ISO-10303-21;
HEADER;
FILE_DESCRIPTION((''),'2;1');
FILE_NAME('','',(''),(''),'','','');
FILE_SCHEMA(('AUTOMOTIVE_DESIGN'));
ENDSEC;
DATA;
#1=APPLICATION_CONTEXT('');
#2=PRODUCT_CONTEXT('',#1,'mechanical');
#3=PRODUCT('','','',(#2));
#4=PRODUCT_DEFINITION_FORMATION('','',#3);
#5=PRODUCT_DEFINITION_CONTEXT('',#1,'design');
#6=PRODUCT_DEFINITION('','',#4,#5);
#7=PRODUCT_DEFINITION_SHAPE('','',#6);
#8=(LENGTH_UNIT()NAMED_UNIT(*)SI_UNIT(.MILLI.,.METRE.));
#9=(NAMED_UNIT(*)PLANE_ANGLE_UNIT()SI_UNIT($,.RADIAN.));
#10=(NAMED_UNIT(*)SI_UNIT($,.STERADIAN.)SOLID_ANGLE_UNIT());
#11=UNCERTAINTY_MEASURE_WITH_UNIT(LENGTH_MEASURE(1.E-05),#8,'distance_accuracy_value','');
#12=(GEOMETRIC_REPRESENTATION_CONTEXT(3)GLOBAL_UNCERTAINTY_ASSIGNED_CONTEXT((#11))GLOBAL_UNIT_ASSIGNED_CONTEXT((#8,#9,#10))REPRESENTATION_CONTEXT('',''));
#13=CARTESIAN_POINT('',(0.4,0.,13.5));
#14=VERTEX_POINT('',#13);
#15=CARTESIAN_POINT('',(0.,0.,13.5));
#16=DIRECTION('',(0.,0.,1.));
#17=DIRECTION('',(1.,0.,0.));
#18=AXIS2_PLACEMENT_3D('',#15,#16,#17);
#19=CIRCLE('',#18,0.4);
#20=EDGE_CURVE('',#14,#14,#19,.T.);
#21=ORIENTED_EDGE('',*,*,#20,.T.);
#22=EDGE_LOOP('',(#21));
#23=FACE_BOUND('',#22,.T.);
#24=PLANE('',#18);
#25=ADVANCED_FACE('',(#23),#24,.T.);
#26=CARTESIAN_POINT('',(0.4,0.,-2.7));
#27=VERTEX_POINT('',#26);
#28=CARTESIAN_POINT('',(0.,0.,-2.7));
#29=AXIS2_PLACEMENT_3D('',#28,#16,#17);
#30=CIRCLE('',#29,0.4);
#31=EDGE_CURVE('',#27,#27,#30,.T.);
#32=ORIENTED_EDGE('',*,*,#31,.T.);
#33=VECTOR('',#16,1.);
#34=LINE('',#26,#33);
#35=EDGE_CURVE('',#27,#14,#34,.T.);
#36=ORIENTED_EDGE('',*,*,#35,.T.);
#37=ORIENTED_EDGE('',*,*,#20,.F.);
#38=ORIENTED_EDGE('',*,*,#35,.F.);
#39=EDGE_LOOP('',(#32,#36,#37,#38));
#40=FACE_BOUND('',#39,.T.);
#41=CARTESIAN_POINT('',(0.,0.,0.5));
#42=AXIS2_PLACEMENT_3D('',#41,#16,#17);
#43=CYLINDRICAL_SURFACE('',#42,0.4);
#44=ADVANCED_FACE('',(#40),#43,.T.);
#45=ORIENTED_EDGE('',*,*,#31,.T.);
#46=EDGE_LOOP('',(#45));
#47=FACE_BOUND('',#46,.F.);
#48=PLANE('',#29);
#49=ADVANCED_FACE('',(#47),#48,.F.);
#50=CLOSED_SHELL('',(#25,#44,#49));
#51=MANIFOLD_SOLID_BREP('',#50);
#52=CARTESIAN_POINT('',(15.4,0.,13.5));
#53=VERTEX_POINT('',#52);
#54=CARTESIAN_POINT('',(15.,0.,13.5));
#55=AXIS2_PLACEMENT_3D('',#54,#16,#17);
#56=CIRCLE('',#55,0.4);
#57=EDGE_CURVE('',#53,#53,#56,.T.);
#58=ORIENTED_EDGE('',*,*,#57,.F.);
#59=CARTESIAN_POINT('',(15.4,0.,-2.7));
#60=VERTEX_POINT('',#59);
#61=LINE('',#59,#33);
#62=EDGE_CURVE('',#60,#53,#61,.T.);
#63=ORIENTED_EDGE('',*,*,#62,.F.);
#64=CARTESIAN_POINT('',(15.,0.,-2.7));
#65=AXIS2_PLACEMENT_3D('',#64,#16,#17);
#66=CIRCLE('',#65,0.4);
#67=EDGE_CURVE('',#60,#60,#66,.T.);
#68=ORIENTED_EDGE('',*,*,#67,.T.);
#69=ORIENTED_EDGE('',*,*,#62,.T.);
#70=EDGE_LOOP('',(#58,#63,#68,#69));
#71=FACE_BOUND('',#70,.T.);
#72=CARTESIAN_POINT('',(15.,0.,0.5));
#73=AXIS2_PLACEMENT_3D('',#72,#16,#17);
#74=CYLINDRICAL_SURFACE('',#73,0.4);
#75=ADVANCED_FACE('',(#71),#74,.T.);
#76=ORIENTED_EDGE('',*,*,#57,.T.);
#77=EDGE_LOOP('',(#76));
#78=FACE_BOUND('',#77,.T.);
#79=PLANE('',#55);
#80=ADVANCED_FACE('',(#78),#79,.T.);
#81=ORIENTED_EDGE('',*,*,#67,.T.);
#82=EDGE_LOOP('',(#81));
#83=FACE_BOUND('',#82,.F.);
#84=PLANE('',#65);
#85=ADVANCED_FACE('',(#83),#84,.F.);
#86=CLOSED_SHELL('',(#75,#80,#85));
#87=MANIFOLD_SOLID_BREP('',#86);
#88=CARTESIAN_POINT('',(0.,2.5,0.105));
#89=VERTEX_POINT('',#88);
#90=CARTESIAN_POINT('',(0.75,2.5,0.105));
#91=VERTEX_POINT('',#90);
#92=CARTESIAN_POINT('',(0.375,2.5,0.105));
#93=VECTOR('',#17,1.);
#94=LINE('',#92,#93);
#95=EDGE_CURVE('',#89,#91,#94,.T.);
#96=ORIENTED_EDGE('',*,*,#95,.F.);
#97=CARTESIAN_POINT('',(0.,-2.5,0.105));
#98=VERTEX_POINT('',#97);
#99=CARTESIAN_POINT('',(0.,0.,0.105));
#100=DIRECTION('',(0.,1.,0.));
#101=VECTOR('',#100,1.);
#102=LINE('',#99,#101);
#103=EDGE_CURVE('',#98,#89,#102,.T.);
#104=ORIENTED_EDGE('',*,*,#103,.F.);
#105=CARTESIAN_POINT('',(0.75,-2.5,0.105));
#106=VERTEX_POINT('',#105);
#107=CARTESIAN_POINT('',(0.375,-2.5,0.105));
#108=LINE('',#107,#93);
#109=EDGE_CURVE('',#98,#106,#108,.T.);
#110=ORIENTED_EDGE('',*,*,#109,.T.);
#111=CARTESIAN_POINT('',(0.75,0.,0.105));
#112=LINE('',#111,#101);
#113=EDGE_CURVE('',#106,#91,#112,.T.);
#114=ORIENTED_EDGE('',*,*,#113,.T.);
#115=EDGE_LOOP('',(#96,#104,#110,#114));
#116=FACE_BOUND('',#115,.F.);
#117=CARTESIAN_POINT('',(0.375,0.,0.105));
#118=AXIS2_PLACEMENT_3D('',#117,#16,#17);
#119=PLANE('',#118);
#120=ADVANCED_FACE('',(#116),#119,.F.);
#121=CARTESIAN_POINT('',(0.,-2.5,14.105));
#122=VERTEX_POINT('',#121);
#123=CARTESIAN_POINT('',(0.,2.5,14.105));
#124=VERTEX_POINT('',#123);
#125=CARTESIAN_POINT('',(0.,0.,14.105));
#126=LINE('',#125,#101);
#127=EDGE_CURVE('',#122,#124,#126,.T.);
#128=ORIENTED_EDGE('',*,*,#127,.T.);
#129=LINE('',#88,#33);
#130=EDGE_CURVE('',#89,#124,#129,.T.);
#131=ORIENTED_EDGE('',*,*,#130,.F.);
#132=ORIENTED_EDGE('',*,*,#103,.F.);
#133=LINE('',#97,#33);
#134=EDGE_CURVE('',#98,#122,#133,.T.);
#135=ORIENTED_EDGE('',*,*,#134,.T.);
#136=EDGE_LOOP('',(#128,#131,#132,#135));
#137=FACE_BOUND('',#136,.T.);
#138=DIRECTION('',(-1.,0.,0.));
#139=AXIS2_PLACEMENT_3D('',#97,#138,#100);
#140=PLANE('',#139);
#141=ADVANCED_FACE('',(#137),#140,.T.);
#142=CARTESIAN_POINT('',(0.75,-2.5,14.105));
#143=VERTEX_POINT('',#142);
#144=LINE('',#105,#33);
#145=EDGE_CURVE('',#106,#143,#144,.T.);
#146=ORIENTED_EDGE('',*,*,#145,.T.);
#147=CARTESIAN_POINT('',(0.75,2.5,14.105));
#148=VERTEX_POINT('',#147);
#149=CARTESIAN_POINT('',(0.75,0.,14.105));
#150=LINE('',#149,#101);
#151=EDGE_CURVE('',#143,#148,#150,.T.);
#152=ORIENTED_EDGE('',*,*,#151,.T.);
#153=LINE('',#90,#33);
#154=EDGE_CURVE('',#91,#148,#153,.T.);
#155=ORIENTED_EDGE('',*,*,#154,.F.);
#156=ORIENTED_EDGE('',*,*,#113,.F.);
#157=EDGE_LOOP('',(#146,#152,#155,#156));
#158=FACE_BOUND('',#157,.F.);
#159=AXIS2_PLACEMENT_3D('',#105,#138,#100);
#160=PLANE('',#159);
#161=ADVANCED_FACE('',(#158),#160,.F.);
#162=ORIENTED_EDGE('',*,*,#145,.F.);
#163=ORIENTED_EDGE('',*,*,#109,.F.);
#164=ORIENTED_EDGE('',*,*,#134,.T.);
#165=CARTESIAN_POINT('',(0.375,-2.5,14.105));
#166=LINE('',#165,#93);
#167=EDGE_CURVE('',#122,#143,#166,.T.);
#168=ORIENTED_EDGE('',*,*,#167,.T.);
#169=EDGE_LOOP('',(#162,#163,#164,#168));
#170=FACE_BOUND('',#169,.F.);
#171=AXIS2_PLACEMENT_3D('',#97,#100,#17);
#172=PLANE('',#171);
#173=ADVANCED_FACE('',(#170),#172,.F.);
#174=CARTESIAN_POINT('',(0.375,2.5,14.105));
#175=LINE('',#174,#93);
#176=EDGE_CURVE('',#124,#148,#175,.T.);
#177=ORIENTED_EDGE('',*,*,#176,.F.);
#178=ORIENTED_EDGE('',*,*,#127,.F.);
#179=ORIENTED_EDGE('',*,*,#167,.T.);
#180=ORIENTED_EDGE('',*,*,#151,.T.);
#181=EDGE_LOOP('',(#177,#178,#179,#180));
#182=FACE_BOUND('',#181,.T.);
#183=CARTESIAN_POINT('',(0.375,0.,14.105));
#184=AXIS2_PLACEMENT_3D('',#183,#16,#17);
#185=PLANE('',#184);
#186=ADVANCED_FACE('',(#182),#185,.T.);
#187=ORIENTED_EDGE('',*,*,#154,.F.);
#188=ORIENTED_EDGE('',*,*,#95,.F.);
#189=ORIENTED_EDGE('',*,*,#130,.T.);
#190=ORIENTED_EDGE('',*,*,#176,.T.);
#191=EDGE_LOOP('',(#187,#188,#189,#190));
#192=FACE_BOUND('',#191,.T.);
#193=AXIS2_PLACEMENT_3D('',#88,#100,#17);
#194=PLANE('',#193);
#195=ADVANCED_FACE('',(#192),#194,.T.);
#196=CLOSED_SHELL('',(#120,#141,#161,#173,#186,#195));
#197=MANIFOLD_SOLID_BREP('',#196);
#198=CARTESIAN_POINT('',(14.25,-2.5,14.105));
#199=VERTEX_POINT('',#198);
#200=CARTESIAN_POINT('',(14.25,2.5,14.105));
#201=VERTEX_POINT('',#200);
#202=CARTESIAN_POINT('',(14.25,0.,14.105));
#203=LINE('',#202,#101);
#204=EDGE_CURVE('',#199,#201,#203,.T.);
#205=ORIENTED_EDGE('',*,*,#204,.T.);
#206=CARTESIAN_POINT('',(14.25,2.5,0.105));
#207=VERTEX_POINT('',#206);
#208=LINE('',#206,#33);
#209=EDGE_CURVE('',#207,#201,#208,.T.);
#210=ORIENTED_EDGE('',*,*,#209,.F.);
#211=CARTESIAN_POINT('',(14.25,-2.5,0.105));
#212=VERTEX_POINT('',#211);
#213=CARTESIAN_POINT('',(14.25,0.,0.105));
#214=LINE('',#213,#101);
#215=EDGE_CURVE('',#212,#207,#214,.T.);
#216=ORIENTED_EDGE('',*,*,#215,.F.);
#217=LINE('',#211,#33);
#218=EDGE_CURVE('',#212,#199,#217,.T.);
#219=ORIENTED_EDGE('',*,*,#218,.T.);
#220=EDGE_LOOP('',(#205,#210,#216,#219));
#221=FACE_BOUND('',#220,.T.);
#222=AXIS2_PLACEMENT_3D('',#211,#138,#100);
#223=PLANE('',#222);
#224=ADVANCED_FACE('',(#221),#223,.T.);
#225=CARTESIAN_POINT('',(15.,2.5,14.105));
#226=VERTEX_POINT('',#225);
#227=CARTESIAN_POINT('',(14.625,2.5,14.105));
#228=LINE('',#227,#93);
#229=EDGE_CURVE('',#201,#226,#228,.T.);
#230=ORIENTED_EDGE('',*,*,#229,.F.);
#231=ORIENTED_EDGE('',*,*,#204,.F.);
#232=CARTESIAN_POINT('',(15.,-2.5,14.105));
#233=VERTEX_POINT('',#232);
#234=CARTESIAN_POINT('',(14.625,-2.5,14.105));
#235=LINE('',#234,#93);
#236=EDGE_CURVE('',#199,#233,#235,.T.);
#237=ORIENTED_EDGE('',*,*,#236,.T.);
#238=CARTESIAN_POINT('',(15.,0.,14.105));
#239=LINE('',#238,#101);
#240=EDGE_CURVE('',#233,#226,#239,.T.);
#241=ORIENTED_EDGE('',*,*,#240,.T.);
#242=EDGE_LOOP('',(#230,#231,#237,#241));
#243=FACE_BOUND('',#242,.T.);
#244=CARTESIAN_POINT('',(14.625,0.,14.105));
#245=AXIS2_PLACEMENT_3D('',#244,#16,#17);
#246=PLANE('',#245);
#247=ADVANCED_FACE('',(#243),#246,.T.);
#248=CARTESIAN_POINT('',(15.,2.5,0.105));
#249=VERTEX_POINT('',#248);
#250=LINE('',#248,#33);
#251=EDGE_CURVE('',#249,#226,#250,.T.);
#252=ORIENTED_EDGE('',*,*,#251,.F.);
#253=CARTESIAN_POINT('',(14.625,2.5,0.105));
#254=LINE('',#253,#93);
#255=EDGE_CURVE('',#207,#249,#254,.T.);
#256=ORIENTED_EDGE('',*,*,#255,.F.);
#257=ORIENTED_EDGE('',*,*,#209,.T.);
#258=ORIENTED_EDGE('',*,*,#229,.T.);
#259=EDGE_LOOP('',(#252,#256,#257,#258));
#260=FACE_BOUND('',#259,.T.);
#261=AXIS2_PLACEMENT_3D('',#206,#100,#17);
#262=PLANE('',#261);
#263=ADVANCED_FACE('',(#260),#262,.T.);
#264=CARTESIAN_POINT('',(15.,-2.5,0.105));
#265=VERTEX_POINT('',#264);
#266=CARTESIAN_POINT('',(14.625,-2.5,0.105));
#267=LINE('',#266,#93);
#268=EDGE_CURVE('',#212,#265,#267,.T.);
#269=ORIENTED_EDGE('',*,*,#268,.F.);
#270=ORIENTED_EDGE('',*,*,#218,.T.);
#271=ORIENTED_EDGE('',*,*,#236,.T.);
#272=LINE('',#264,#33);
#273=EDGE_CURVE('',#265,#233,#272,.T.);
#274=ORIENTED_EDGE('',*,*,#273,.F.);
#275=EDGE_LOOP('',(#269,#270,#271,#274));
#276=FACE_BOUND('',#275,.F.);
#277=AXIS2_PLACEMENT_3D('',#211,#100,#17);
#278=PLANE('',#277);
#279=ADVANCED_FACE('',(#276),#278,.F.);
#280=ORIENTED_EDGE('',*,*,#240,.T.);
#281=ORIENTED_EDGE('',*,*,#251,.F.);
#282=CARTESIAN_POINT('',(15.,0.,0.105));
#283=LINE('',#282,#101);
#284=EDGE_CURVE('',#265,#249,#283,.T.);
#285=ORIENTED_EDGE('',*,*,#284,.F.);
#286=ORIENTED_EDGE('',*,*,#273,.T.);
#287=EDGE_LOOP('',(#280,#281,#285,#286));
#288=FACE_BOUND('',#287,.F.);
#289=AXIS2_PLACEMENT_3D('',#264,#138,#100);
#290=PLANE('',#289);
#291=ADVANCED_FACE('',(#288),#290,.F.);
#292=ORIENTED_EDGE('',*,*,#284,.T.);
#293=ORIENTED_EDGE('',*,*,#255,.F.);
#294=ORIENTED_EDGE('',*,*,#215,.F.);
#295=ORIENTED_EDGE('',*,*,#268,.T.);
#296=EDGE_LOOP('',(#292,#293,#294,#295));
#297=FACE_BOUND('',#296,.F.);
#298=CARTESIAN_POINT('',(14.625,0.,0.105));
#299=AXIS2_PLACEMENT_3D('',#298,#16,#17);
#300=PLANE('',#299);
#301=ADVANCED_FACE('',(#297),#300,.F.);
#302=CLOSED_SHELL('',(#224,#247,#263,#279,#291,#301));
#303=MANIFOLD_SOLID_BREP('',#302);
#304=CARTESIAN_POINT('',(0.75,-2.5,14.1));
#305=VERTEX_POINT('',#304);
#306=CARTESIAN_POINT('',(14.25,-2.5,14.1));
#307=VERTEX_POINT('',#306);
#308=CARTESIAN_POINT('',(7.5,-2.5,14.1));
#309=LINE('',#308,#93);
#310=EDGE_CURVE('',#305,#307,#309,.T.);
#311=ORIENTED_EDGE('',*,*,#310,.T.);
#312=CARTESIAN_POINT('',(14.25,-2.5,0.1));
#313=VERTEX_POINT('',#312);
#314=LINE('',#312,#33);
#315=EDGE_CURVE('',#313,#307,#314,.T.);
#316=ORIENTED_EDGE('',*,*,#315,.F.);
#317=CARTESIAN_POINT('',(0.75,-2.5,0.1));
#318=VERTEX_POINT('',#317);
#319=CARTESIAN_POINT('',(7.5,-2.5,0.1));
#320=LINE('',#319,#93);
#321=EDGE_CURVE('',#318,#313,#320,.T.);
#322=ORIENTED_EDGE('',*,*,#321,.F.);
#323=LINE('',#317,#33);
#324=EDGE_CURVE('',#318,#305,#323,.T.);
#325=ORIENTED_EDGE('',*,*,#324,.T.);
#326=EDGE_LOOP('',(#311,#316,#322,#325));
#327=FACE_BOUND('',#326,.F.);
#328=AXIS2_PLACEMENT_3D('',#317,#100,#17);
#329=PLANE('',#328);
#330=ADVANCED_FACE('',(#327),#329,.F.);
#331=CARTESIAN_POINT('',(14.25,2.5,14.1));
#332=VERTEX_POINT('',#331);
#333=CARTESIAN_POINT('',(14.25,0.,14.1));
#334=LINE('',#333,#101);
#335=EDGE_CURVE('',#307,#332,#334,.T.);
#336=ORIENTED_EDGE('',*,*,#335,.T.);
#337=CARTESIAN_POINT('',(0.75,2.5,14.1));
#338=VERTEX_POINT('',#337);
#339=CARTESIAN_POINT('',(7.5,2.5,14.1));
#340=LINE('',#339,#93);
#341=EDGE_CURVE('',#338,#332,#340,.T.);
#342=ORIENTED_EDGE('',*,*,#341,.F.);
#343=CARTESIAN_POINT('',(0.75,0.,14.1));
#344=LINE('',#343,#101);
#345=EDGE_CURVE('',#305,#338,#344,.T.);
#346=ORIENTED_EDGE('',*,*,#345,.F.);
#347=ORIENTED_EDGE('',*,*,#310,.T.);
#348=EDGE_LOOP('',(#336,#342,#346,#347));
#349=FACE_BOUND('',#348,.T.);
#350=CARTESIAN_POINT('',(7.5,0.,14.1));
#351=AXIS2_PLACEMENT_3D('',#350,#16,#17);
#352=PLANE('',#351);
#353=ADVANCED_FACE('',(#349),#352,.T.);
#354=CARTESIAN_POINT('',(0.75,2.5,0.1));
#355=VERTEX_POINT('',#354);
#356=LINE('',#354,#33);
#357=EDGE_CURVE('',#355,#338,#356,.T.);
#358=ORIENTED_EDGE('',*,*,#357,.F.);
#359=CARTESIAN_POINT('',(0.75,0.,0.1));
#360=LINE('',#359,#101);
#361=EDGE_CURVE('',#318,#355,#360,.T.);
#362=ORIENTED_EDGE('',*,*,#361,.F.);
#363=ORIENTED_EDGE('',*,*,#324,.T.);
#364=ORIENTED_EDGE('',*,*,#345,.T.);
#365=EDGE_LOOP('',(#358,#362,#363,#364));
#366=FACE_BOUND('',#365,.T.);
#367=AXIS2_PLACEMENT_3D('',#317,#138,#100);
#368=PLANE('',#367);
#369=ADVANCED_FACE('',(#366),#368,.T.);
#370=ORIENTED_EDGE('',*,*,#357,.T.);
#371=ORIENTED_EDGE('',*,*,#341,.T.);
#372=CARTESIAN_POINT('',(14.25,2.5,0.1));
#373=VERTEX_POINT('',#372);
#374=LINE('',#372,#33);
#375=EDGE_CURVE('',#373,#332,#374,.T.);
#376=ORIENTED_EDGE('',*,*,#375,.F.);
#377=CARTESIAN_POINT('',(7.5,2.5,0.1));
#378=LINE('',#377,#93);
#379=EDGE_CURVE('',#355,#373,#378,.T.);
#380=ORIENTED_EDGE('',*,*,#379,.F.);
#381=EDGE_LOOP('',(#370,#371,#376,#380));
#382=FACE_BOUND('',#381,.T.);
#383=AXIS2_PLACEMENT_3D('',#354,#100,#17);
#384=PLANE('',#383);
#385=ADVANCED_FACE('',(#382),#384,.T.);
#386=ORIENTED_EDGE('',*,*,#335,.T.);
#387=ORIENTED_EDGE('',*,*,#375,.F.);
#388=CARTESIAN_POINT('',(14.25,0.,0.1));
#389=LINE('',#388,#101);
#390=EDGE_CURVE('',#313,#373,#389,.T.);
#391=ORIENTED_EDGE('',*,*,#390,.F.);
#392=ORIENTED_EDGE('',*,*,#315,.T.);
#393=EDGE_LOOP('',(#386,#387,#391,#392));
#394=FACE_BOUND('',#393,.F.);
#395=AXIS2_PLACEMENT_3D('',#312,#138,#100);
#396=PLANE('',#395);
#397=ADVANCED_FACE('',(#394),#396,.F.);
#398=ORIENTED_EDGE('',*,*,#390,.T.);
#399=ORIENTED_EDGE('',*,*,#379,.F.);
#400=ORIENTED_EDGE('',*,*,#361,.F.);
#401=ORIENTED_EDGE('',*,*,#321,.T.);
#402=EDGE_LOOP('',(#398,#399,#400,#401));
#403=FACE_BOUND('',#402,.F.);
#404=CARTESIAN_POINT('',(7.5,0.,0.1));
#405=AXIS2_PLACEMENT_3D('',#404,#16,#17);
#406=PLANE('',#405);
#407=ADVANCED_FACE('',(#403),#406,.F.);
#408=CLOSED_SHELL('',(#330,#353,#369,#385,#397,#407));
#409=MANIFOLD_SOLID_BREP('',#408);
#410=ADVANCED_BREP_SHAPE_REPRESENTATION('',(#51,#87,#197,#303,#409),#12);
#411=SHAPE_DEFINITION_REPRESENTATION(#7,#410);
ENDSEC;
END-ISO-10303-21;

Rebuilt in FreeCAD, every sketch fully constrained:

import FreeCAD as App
import Part
import Sketcher


def add_polygon(sketch, points):
    """Adds a closed chain of lines whose ends are joined by coincident constraints."""
    first, n = sketch.GeometryCount, len(points)
    for a, b in zip(points, points[1:] + points[:1]):
        sketch.addGeometry(Part.LineSegment(App.Vector(*a, 0), App.Vector(*b, 0)), False)
    for i in range(n):
        sketch.addConstraint(Sketcher.Constraint("Coincident", first + i, 2, first + (i + 1) % n, 1))

doc = App.newDocument("Part")
body = doc.addObject("PartDesign::Body", "Body")

# Sketch on XY plane
sketch1 = body.newObject("Sketcher::SketchObject", "Sketch")
sketch1.AttachmentSupport = (doc.getObject("XY_Plane"), [""])
sketch1.MapMode = "FlatFace"
sketch1.AttachmentOffset = App.Placement(App.Vector(0, 0, 0.1), App.Rotation())
add_polygon(sketch1, [(0.75, 2.5), (0.75, -2.5), (14.25, -2.5), (14.25, 2.5)])  # lines 0-3
sketch1.addConstraint(Sketcher.Constraint("Vertical", 0))
sketch1.addConstraint(Sketcher.Constraint("Horizontal", 1))
sketch1.addConstraint(Sketcher.Constraint("Vertical", 2))
sketch1.addConstraint(Sketcher.Constraint("Horizontal", 3))
sketch1.addConstraint(Sketcher.Constraint("DistanceY", 0, 2, 0, 1, 5.0))
sketch1.addConstraint(Sketcher.Constraint("DistanceX", 1, 1, 1, 2, 13.5))
sketch1.addConstraint(Sketcher.Constraint("DistanceY", 0, 2, -1, 1, 2.5))
sketch1.addConstraint(Sketcher.Constraint("DistanceX", -1, 1, 0, 2, 0.75))
pad1 = body.newObject("PartDesign::Pad", "Pad")
pad1.Profile = sketch1
pad1.Length = 14
body2 = doc.addObject("PartDesign::Body", "Body001")
body2.AllowCompound = True

# Sketch on XY plane
sketch2 = body2.newObject("Sketcher::SketchObject", "Sketch001")
sketch2.AttachmentSupport = (doc.getObject("XY_Plane001"), [""])
sketch2.MapMode = "FlatFace"
sketch2.AttachmentOffset = App.Placement(App.Vector(0, 0, 0.5), App.Rotation())
sketch2.addGeometry(Part.Circle(App.Vector(0, 0, 0), App.Vector(0, 0, 1), 0.4), False)
sketch2.addGeometry(Part.Circle(App.Vector(15, 0, 0), App.Vector(0, 0, 1), 0.4), False)
sketch2.addConstraint(Sketcher.Constraint("Coincident", 0, 3, -1, 1))
sketch2.addConstraint(Sketcher.Constraint("Equal", 0, 1))
sketch2.addConstraint(Sketcher.Constraint("PointOnObject", 1, 3, -1))
sketch2.addConstraint(Sketcher.Constraint("Diameter", 0, 0.8))
sketch2.addConstraint(Sketcher.Constraint("DistanceX", -1, 1, 1, 3, 15.0))
pad2 = body2.newObject("PartDesign::Pad", "Pad001")
pad2.Profile = sketch2
pad2.Type = "TwoLengths"
pad2.Length = 13
pad2.Length2 = 3.2
body3 = doc.addObject("PartDesign::Body", "Body002")
body3.AllowCompound = True

# Sketch on XY plane
sketch3 = body3.newObject("Sketcher::SketchObject", "Sketch002")
sketch3.AttachmentSupport = (doc.getObject("XY_Plane002"), [""])
sketch3.MapMode = "FlatFace"
sketch3.AttachmentOffset = App.Placement(App.Vector(0, 0, 0.105), App.Rotation())
add_polygon(sketch3, [(0, 2.5), (0, -2.5), (0.75, -2.5), (0.75, 2.5)])  # lines 0-3
add_polygon(sketch3, [(14.25, 2.5), (14.25, -2.5), (15, -2.5), (15, 2.5)])  # lines 4-7
sketch3.addConstraint(Sketcher.Constraint("Vertical", 0))
sketch3.addConstraint(Sketcher.Constraint("Horizontal", 1))
sketch3.addConstraint(Sketcher.Constraint("Vertical", 2))
sketch3.addConstraint(Sketcher.Constraint("Horizontal", 3))
sketch3.addConstraint(Sketcher.Constraint("Vertical", 4))
sketch3.addConstraint(Sketcher.Constraint("Horizontal", 5))
sketch3.addConstraint(Sketcher.Constraint("Vertical", 6))
sketch3.addConstraint(Sketcher.Constraint("Horizontal", 7))
sketch3.addConstraint(Sketcher.Constraint("Symmetric", 0, 2, 3, 2, -1, 1))
sketch3.addConstraint(Sketcher.Constraint("Horizontal", 1, 2, 4, 2))
sketch3.addConstraint(Sketcher.Constraint("Horizontal", 3, 2, 6, 2))
sketch3.addConstraint(Sketcher.Constraint("Equal", 3, 5))
sketch3.addConstraint(Sketcher.Constraint("DistanceY", 0, 2, 0, 1, 5.0))
sketch3.addConstraint(Sketcher.Constraint("DistanceX", -1, 1, 5, 2, 15.0))
sketch3.addConstraint(Sketcher.Constraint("DistanceX", 1, 1, 1, 2, 0.75))
pad3 = body3.newObject("PartDesign::Pad", "Pad002")
pad3.Profile = sketch3
pad3.Length = 14

doc.recompute()
